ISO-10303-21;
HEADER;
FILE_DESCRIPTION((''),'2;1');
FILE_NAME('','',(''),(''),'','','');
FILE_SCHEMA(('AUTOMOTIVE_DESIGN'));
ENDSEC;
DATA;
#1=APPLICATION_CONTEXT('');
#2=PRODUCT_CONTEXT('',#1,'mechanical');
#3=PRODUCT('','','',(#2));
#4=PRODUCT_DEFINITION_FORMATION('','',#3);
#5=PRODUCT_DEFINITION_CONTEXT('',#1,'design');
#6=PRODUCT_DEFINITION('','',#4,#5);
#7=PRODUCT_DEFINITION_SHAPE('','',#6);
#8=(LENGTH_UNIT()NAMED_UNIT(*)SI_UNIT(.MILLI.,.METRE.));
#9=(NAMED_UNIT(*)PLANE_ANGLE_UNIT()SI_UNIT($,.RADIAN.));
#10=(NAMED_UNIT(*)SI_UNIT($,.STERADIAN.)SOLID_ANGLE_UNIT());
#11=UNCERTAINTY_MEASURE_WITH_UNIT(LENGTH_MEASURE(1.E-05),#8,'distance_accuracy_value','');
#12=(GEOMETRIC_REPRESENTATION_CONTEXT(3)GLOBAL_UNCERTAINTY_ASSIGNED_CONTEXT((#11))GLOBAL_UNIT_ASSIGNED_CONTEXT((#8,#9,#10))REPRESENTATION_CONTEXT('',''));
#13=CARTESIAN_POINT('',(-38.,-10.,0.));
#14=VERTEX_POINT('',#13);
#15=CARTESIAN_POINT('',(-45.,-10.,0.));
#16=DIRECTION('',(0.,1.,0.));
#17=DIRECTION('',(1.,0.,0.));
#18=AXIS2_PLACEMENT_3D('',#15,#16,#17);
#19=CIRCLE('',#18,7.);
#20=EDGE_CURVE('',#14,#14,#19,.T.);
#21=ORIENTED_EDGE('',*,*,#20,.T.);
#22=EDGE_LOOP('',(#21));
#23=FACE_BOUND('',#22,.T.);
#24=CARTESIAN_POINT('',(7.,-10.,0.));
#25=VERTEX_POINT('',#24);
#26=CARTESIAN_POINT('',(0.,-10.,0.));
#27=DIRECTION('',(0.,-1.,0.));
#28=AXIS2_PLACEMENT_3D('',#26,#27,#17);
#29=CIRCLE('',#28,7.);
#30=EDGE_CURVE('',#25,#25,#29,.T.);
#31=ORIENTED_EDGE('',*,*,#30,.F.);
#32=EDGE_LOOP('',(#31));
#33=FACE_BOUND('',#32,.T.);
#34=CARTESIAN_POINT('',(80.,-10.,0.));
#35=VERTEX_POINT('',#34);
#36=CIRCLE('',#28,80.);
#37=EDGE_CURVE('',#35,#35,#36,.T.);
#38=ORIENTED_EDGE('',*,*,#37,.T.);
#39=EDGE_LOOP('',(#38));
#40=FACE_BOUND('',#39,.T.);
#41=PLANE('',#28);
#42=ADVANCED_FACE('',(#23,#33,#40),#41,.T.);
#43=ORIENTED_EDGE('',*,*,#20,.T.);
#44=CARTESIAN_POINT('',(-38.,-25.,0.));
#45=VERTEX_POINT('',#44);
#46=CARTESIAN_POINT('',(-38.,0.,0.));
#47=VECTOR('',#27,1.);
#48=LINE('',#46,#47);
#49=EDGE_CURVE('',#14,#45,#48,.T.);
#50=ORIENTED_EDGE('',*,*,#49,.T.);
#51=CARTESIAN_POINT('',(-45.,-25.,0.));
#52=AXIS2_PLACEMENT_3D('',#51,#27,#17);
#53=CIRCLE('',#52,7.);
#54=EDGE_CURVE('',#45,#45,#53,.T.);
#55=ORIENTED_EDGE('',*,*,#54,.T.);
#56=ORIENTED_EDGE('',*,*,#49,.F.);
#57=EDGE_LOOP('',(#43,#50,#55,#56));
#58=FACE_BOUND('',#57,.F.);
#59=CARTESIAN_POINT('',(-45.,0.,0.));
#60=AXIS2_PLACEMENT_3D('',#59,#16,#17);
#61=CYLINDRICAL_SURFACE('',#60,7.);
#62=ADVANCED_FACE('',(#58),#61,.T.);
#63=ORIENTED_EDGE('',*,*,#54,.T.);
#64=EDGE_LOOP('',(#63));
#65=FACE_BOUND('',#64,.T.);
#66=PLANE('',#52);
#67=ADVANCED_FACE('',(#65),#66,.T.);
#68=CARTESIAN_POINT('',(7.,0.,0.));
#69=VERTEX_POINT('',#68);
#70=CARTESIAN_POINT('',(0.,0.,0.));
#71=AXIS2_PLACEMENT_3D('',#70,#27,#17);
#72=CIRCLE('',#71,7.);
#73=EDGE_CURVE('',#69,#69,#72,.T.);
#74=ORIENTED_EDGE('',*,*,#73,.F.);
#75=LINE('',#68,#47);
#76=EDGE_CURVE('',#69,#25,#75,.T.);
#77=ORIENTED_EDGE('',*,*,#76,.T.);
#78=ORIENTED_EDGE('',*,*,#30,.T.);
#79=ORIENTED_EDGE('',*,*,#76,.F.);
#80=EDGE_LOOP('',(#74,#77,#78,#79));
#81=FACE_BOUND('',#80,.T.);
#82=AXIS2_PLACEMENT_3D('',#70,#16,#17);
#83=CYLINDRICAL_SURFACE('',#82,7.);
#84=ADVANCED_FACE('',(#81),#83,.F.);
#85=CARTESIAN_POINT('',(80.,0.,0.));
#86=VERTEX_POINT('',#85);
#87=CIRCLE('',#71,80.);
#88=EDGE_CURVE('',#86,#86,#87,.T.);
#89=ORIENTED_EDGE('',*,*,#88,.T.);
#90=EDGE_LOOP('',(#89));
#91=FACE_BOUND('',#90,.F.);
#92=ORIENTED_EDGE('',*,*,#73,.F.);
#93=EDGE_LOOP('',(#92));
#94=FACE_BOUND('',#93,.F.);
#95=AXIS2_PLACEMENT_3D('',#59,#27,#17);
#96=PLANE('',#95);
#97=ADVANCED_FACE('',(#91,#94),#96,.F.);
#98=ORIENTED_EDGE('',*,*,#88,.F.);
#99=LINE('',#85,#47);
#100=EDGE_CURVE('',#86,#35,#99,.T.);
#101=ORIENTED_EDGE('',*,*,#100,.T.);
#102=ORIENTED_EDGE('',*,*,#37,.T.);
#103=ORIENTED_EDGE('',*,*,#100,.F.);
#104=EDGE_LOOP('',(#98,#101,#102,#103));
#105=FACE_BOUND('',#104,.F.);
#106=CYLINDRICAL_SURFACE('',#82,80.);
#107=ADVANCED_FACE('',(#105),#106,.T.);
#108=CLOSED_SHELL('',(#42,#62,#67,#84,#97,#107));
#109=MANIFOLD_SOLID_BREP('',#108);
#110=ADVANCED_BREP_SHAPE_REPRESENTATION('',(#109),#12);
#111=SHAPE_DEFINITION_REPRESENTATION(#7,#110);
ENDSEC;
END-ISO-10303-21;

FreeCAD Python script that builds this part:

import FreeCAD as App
import Part
import Sketcher

V = App.Vector

doc = App.newDocument("Part")
params = doc.addObject("Spreadsheet::Sheet", "Params")
for row, (alias, value) in enumerate([
    ("sketch1_diameter", "160 mm"),
    ("sketch1_diameter2", "14 mm"),
    ("pad1_length", "10 mm"),
    ("sketch2_diameter", "14 mm"),
    ("pad2_length", "25 mm"),
], start=1):
    params.set(f"A{row}", alias)
    params.set(f"B{row}", "=" + value)
    params.setAlias(f"B{row}", alias)

body = doc.addObject("PartDesign::Body", "Body")

# Sketch on XZ plane
sketch1 = body.newObject("Sketcher::SketchObject", "Sketch")
sketch1.AttachmentSupport = (doc.getObject("XZ_Plane"), [""])
sketch1.MapMode = "FlatFace"
sketch1.addGeometry(Part.Circle(V(0, 0, 0), V(0, 0, 1), 80), False)
sketch1.addGeometry(Part.Circle(V(0, 0, 0), V(0, 0, 1), 7), False)
sketch1.addConstraint(Sketcher.Constraint("Coincident", 0, 3, -1, 1))
sketch1.addConstraint(Sketcher.Constraint("Coincident", 1, 3, -1, 1))
sketch1.addConstraint(Sketcher.Constraint("Diameter", 0, 160.0))
sketch1.addConstraint(Sketcher.Constraint("Diameter", 1, 14.0))
sketch1.setExpression("Constraints[2]", "Params.sketch1_diameter")
sketch1.setExpression("Constraints[3]", "Params.sketch1_diameter2")
pad1 = body.newObject("PartDesign::Pad", "Pad")
pad1.Profile = sketch1
pad1.setExpression("Length", "Params.pad1_length")

# Sketch on XZ plane
sketch2 = body.newObject("Sketcher::SketchObject", "Sketch001")
sketch2.AttachmentSupport = (doc.getObject("XZ_Plane"), [""])
sketch2.MapMode = "FlatFace"
sketch2.addGeometry(Part.Circle(V(-45, 0, 0), V(0, 0, 1), 7), False)
sketch2.addConstraint(Sketcher.Constraint("PointOnObject", 0, 3, -1))
sketch2.addConstraint(Sketcher.Constraint("Diameter", 0, 14.0))
sketch2.addConstraint(Sketcher.Constraint("DistanceX", 0, 3, -1, 1, 45.0))
sketch2.setExpression("Constraints[1]", "Params.sketch2_diameter")
pad2 = body.newObject("PartDesign::Pad", "Pad001")
pad2.Profile = sketch2
pad2.setExpression("Length", "Params.pad2_length")

doc.recompute()
